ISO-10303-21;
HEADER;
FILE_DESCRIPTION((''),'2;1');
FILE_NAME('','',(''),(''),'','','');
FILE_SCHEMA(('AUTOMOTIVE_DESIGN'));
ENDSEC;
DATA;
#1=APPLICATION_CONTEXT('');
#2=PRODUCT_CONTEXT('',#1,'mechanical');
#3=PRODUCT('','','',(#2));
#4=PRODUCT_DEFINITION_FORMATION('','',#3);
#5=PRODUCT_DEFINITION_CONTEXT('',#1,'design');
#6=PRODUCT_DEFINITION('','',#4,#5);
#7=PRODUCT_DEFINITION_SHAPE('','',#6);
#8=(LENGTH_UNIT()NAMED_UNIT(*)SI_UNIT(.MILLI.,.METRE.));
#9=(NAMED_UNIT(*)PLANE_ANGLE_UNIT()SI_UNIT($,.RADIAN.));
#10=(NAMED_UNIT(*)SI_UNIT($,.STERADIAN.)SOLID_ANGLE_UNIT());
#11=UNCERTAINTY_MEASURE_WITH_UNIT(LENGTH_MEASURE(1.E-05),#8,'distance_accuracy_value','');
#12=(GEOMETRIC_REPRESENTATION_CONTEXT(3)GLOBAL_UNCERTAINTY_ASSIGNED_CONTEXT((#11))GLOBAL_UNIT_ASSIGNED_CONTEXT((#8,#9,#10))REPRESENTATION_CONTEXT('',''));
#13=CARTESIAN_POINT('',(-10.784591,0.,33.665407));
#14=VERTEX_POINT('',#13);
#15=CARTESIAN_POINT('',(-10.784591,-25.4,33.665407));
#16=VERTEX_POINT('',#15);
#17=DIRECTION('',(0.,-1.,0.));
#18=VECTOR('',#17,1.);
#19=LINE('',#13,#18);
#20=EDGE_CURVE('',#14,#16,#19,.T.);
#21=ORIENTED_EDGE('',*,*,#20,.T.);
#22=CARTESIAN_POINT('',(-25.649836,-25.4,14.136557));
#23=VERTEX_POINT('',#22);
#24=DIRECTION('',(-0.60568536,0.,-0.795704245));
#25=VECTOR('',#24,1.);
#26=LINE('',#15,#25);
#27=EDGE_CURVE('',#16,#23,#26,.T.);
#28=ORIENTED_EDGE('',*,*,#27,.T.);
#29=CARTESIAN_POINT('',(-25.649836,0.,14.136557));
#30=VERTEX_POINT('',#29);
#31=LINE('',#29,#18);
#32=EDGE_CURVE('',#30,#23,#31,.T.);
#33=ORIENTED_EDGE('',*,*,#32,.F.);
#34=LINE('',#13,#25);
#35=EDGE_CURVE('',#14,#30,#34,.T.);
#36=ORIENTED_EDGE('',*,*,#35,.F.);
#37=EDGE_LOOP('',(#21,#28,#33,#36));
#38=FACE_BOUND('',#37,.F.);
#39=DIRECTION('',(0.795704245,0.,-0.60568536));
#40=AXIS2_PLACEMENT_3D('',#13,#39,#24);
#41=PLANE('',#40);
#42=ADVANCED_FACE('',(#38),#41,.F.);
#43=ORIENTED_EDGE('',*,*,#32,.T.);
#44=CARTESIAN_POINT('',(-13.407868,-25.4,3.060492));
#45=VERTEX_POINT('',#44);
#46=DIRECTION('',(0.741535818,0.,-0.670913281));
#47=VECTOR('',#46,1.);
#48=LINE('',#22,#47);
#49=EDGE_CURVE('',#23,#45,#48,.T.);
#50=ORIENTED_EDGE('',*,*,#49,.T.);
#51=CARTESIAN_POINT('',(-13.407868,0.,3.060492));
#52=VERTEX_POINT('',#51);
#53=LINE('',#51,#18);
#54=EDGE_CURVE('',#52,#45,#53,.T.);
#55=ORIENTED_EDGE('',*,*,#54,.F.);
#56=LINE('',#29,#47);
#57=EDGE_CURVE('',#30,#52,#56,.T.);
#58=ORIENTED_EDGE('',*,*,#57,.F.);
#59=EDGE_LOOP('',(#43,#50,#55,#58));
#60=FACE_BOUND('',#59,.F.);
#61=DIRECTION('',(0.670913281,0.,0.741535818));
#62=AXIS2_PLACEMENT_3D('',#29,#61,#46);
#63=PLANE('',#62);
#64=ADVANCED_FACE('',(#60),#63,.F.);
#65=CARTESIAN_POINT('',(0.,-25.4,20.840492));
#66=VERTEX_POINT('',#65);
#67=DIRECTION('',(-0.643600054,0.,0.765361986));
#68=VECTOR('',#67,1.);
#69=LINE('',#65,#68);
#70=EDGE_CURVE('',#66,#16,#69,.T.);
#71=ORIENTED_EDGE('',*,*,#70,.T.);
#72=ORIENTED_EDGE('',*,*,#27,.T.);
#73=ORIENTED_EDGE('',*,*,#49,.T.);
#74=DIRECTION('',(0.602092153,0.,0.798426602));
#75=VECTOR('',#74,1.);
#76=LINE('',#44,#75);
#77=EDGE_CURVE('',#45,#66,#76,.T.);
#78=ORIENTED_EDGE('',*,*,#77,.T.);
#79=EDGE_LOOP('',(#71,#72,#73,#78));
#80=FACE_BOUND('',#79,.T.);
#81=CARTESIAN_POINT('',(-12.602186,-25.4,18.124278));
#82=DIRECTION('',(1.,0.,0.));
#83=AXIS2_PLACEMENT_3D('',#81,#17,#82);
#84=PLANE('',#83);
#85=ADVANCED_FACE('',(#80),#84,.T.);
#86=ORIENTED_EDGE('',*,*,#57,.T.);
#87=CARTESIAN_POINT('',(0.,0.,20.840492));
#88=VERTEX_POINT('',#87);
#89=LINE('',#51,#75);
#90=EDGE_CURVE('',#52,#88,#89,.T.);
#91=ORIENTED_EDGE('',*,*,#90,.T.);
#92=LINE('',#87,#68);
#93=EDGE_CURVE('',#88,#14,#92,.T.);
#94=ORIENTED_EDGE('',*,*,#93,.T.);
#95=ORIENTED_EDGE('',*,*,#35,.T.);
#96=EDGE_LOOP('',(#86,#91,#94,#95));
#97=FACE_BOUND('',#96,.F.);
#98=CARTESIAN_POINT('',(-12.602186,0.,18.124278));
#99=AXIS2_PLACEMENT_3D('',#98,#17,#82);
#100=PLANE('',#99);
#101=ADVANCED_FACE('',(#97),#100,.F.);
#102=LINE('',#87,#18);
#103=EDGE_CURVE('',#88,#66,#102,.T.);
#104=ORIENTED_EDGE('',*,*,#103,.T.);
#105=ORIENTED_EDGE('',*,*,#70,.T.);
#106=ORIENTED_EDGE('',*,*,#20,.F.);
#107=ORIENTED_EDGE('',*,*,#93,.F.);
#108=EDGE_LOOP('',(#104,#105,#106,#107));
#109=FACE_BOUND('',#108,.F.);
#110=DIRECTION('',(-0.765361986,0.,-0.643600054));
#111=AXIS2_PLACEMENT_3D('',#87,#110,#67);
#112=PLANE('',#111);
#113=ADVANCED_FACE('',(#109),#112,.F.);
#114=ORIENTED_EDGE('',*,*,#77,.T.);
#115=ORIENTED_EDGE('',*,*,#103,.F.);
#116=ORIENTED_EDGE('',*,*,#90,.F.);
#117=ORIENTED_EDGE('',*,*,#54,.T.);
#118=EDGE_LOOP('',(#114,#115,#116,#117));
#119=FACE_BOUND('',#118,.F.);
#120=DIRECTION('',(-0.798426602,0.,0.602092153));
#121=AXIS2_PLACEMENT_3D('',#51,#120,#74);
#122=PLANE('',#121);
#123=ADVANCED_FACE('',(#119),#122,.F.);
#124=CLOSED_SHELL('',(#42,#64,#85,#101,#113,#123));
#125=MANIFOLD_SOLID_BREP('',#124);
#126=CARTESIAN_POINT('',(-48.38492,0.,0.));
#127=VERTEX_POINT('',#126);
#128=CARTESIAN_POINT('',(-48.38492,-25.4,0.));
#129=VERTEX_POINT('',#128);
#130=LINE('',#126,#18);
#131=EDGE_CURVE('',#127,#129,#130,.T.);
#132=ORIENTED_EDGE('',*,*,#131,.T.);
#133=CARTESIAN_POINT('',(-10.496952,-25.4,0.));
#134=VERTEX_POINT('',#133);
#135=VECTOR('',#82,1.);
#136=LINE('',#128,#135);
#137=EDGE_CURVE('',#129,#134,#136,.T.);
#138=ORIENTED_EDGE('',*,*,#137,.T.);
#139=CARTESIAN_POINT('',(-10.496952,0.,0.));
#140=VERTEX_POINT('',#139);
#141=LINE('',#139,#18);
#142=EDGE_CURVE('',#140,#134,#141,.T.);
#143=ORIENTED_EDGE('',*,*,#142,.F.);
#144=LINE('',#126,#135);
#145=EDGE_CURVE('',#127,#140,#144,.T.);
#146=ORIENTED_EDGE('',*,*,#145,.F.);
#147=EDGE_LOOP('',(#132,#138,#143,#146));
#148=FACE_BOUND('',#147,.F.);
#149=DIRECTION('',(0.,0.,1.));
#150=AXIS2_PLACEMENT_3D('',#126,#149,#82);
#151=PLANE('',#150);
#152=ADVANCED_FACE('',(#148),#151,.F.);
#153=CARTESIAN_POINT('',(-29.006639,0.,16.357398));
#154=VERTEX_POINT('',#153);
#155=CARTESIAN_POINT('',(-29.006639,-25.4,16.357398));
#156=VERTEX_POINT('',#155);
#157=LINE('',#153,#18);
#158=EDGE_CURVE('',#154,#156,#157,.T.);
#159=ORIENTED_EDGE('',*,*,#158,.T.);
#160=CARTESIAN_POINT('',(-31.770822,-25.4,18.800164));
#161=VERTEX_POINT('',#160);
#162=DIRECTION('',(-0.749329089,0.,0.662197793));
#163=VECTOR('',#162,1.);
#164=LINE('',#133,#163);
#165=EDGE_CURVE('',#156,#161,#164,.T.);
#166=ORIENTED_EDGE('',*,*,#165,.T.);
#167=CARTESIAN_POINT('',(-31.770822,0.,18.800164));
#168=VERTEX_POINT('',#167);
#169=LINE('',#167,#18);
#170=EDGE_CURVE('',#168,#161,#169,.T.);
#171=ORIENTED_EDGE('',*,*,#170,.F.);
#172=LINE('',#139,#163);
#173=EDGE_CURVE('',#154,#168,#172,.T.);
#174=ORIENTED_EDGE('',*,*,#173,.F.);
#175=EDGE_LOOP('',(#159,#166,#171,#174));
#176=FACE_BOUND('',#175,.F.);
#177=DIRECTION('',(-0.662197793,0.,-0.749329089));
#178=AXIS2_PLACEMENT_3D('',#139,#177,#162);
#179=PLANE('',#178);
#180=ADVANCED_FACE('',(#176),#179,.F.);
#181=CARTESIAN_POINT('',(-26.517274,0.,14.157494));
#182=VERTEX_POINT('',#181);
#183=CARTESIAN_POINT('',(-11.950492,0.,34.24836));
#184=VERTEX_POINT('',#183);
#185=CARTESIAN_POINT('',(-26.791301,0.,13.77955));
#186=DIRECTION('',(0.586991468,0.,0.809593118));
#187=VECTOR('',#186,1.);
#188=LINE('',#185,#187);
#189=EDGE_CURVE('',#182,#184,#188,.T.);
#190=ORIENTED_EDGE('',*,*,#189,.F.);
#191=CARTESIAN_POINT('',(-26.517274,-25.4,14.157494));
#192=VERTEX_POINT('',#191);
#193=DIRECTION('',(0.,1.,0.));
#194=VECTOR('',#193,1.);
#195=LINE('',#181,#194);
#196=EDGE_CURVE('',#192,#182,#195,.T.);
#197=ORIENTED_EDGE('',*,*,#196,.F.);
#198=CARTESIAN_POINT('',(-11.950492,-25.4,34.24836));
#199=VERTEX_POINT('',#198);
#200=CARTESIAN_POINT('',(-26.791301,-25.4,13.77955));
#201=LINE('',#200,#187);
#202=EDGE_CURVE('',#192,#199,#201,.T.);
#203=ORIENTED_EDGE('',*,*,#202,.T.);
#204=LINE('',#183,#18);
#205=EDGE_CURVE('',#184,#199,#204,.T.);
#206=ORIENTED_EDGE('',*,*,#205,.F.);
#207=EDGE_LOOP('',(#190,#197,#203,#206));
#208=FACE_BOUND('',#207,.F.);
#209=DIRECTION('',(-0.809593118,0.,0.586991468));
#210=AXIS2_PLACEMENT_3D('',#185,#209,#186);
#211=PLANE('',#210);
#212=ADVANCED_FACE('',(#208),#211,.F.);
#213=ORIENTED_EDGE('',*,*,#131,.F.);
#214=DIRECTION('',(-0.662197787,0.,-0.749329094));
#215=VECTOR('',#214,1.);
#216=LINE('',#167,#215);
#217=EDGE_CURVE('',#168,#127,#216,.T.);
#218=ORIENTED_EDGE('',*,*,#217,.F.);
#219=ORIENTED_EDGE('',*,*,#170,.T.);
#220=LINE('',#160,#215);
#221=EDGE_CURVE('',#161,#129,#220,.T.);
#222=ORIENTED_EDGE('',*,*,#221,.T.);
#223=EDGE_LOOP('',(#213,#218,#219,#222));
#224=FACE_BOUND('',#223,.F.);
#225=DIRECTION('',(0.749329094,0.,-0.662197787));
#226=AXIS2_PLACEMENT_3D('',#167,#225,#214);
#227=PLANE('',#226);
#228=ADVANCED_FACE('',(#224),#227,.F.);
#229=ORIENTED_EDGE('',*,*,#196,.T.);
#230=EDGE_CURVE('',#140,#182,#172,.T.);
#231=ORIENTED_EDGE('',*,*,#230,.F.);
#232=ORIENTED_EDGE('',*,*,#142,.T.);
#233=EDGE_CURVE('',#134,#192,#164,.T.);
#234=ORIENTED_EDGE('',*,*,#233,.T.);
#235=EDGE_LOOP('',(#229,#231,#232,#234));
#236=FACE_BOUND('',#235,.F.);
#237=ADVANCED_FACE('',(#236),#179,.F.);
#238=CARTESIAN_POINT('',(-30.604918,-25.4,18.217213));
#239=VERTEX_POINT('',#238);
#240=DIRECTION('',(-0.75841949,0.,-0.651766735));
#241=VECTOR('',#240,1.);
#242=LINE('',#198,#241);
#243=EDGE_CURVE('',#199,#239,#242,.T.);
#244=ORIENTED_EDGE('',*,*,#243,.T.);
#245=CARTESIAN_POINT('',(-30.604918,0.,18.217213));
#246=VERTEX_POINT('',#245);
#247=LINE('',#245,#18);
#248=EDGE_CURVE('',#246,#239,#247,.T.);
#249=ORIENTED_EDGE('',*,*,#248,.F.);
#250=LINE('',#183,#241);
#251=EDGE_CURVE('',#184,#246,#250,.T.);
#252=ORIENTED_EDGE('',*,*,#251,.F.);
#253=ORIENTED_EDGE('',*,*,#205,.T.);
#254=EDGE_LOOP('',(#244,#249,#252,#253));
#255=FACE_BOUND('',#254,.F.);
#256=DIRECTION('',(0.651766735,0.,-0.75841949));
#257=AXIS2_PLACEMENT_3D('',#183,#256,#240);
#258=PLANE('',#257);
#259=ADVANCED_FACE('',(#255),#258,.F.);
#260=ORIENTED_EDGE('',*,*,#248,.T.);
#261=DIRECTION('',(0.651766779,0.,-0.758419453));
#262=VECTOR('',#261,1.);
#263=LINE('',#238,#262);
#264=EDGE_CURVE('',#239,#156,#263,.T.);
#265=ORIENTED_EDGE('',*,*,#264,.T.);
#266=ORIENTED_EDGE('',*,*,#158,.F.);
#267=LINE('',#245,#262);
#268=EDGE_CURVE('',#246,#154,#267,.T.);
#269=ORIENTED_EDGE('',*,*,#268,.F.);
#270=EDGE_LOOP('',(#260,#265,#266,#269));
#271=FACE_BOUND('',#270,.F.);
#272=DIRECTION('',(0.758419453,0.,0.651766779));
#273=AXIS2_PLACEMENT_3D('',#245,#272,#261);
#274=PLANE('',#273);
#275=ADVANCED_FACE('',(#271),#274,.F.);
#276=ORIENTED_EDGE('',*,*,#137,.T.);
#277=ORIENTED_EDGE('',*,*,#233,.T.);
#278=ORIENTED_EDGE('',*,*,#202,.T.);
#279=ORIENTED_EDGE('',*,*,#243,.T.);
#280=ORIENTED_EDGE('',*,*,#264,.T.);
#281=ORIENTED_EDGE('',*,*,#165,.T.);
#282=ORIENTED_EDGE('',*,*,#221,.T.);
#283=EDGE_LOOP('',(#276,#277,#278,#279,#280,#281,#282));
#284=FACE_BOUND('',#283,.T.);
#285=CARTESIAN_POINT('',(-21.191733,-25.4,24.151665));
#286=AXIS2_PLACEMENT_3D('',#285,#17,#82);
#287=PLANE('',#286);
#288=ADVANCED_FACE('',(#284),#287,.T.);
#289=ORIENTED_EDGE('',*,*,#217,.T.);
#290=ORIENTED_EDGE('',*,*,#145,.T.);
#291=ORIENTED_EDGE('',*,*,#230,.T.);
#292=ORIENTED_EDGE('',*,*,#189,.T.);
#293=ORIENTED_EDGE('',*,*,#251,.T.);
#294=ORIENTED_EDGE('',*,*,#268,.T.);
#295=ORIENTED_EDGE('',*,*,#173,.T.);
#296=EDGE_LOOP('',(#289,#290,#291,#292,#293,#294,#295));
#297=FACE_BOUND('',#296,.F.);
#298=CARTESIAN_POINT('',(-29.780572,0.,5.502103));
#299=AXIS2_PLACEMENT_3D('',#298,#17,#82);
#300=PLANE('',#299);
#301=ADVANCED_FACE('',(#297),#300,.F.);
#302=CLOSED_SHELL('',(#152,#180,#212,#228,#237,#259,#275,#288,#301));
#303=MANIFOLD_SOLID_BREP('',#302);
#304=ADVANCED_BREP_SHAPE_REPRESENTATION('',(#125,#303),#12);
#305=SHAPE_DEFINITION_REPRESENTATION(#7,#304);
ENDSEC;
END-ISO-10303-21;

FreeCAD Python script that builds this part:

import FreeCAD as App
import Part
import Sketcher
from FreeCAD import Vector
Q = App.Units.Quantity


def add_polygon(sketch, points):
    """Adds a closed chain of lines whose ends are joined by coincident constraints."""
    first, n = sketch.GeometryCount, len(points)
    for a, b in zip(points, points[1:] + points[:1]):
        sketch.addGeometry(Part.LineSegment(App.Vector(*a, 0), App.Vector(*b, 0)), False)
    for i in range(n):
        sketch.addConstraint(Sketcher.Constraint("Coincident", first + i, 2, first + (i + 1) % n, 1))

doc = App.newDocument("Part")
body = doc.addObject("PartDesign::Body", "Body")

# Sketch on XZ plane
sketch1 = body.newObject("Sketcher::SketchObject", "Sketch")
sketch1.AttachmentSupport = (doc.getObject("XZ_Plane"), [""])
sketch1.MapMode = "FlatFace"
add_polygon(sketch1, [(-32, 19), (-48, 0), (-10, 0)])  # lines 0-2
sketch1.addConstraint([
    Sketcher.Constraint("Horizontal", 1),
    Sketcher.Constraint("PointOnObject", 0, 2, -1),
    Sketcher.Constraint("Perpendicular", 0, 2),
    Sketcher.Constraint("DistanceX", 0, 2, 2, 2, Q("16.614098 mm")),
    Sketcher.Constraint("Distance", 0, Q("25.089329 mm")),
    Sketcher.Constraint("DistanceX", 0, 2, -1, 1, Q("48.38492 mm")),
])
pad1 = body.newObject("PartDesign::Pad", "Pad")
pad1.Profile = sketch1
pad1.Length = Q("1 in")

# Sketch on XZ plane
sketch2 = body.newObject("Sketcher::SketchObject", "Sketch001")
sketch2.AttachmentSupport = (doc.getObject("XZ_Plane"), [""])
sketch2.MapMode = "FlatFace"
add_polygon(sketch2, [(-27, 14), (-12, 34), (-31, 18)])  # lines 0-2
sketch2.addConstraint([
    Sketcher.Constraint("Perpendicular", 1, 2),
    Sketcher.Constraint("Distance", 2, Q("5.851199 mm")),
    Sketcher.Constraint("DistanceX", 2, 2, -1, 1, Q("26.791301 mm")),
    Sketcher.Constraint("Distance", 1, Q("24.596449 mm")),
    Sketcher.Constraint("DistanceY", -1, 1, 0, 2, Q("34.24836 mm")),
    Sketcher.Constraint("DistanceX", 1, 2, -1, 1, Q("30.604918 mm")),
])
pad2 = body.newObject("PartDesign::Pad", "Pad001")
pad2.Profile = sketch2
pad2.Length = Q("1 in")
body2 = doc.addObject("PartDesign::Body", "Body001")

# Sketch on XZ plane
sketch3 = body2.newObject("Sketcher::SketchObject", "Sketch002")
sketch3.AttachmentSupport = (doc.getObject("XZ_Plane001"), [""])
sketch3.MapMode = "FlatFace"
add_polygon(sketch3, [(-11, 34), (-26, 14), (-13, 3), (0, 21)])  # lines 0-3
sketch3.addConstraint([
    Sketcher.Constraint("PointOnObject", 2, 2, -2),
    Sketcher.Constraint("DistanceY", 1, 2, 2, 2, Q("0.7 in")),
    Sketcher.Constraint("Distance", 0, Q("24.54285 mm")),
    Sketcher.Constraint("DistanceY", -1, 1, 1, 2, Q("3.060492 mm")),
    Sketcher.Constraint("DistanceX", 3, 2, -1, 1, Q("10.784591 mm")),
    Sketcher.Constraint("DistanceY", 0, 2, 3, 2, Q("19.52885 mm")),
    Sketcher.Constraint("Distance", 1, Q("16.508937 mm")),
    Sketcher.Constraint("Distance", 2, Q("22.268797 mm")),
])
pad3 = body2.newObject("PartDesign::Pad", "Pad002")
pad3.Profile = sketch3
pad3.Length = Q("1 in")

doc.recompute()
